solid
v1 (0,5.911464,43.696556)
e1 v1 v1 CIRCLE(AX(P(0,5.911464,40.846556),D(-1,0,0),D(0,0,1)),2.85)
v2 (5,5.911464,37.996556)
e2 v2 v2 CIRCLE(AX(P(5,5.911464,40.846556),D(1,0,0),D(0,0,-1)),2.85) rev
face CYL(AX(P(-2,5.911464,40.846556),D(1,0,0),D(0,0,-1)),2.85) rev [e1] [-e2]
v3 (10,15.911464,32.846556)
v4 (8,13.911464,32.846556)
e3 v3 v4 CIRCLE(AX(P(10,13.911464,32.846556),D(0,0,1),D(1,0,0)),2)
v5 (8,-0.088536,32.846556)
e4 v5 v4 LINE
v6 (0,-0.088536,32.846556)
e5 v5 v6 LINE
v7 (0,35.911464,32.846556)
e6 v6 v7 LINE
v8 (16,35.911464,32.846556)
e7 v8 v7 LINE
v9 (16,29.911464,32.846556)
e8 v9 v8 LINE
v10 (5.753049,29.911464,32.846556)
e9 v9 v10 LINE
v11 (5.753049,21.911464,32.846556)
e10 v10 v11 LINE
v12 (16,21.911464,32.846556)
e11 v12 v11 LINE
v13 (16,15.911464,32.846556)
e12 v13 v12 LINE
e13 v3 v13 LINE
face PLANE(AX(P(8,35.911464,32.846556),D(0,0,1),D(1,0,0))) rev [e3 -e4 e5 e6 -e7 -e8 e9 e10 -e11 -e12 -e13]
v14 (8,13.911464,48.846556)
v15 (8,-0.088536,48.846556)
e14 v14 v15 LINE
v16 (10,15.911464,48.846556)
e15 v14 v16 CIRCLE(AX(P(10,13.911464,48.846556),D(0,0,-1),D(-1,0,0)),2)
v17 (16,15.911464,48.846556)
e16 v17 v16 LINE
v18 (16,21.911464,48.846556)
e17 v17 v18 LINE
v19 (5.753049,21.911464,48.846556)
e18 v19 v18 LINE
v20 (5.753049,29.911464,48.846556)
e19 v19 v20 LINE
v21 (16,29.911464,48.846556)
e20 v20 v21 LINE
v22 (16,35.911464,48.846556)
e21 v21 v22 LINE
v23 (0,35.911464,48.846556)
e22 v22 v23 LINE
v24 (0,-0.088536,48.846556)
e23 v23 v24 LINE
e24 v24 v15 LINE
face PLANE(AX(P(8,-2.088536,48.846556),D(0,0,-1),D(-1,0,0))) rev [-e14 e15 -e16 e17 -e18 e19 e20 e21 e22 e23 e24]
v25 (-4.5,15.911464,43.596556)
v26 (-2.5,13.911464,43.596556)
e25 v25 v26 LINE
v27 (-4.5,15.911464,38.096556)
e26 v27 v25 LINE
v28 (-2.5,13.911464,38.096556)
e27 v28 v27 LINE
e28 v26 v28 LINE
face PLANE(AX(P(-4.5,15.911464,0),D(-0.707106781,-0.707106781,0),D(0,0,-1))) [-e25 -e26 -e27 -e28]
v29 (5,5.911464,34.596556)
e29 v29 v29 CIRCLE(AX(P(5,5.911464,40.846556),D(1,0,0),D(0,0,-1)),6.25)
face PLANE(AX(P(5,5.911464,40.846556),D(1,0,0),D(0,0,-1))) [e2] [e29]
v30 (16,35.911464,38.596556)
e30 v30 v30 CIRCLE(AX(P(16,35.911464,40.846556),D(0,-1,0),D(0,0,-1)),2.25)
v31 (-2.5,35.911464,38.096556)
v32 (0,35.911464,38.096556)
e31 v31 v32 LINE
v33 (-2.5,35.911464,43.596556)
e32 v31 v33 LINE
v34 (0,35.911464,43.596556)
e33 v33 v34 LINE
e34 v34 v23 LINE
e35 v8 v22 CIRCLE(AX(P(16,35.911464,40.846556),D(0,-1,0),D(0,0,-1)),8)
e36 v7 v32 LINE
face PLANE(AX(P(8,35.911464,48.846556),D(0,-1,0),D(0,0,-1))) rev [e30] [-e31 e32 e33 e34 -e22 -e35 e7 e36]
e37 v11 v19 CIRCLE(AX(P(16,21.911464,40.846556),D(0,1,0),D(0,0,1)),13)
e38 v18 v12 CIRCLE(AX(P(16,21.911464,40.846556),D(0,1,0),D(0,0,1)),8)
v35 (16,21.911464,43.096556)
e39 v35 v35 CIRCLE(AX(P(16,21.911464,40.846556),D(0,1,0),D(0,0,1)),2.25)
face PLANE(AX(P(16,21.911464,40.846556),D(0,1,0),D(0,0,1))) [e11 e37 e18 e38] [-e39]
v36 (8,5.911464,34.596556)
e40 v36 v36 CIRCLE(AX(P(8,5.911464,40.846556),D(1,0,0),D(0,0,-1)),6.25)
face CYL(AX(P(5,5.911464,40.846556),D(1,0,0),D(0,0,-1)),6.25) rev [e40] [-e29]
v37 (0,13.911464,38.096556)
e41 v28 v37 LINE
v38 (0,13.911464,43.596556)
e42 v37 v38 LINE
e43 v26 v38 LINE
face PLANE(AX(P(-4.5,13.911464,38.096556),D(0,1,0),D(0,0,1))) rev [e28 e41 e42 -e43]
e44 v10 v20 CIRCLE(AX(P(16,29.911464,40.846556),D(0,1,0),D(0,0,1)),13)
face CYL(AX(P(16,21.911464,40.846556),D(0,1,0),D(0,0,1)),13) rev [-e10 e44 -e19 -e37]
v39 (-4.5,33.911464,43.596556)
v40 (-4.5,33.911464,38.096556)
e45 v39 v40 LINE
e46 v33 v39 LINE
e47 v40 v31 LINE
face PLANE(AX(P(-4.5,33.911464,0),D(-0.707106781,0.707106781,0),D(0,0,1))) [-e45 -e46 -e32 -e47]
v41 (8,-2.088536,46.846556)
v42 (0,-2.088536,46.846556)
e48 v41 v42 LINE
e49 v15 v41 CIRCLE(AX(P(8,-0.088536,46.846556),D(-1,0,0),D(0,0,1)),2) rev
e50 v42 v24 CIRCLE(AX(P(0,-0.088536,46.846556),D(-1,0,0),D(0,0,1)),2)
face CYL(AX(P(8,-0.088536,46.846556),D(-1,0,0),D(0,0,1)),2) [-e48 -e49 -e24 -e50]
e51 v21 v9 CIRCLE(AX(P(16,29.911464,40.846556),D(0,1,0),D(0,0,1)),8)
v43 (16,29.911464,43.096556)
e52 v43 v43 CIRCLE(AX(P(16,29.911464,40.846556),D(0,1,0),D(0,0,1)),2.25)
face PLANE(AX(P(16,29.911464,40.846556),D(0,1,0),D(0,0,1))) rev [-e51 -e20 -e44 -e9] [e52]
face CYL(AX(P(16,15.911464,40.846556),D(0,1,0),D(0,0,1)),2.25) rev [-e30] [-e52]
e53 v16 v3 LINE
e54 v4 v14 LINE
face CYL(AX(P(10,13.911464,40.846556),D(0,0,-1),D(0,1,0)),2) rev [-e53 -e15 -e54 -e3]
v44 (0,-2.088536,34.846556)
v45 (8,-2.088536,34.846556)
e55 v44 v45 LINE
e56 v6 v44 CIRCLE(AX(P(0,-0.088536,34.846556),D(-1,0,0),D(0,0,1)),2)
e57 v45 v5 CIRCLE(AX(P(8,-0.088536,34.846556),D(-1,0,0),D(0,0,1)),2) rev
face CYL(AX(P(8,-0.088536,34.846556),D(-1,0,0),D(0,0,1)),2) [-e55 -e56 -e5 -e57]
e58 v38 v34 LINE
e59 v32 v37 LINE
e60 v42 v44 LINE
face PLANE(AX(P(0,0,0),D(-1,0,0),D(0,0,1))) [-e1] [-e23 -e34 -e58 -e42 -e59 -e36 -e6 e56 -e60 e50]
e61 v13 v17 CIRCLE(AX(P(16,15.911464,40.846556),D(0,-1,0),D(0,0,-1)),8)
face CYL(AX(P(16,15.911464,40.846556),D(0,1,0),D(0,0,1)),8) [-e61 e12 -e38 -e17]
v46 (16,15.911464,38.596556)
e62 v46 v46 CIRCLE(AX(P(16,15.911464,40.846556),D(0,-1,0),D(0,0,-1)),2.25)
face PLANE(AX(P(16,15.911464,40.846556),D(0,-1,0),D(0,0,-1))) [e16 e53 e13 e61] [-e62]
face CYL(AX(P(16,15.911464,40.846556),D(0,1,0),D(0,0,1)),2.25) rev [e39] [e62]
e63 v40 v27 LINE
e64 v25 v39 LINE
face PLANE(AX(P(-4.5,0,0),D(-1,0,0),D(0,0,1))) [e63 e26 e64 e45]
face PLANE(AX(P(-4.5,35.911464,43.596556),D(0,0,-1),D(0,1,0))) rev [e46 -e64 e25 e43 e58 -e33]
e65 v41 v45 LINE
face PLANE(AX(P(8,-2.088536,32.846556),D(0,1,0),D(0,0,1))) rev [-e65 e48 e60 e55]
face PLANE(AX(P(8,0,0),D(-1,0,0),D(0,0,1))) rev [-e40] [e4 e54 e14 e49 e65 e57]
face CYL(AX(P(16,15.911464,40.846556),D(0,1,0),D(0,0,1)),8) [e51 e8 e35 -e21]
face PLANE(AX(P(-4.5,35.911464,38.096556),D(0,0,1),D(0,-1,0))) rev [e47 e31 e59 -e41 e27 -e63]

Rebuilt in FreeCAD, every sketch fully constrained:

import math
import FreeCAD as App
import Part
import Sketcher
Q = App.Units.Quantity


def edges_at(feature, points):
    """Names of the edges that pass closest to the given points."""
    edges = feature.Shape.Edges
    near = lambda p: min(range(len(edges)), key=lambda i: edges[i].distToShape(Part.Vertex(*p))[0])
    return sorted({f"Edge{near(p) + 1}" for p in points})


def add_polygon(sketch, points):
    """Adds a closed chain of lines whose ends are joined by coincident constraints."""
    first, n = sketch.GeometryCount, len(points)
    for a, b in zip(points, points[1:] + points[:1]):
        sketch.addGeometry(Part.LineSegment(App.Vector(*a, 0), App.Vector(*b, 0)), False)
    for i in range(n):
        sketch.addConstraint(Sketcher.Constraint("Coincident", first + i, 2, first + (i + 1) % n, 1))

doc = App.newDocument("Part")
body = doc.addObject("PartDesign::Body", "Body")

# Sketch on YZ plane
sketch1 = body.newObject("Sketcher::SketchObject", "Sketch")
sketch1.AttachmentSupport = (doc.getObject("YZ_Plane"), [""])
sketch1.MapMode = "FlatFace"
add_polygon(sketch1, [(36, 49), (-2, 49), (-2, 33), (36, 33)])  # lines 0-3
sketch1.addConstraint(Sketcher.Constraint("Horizontal", 0))
sketch1.addConstraint(Sketcher.Constraint("Vertical", 1))
sketch1.addConstraint(Sketcher.Constraint("Horizontal", 2))
sketch1.addConstraint(Sketcher.Constraint("Vertical", 3))
sketch1.addConstraint(Sketcher.Constraint("DistanceX", 0, 2, 0, 1, Q("38 mm")))
sketch1.addConstraint(Sketcher.Constraint("DistanceY", 1, 2, 1, 1, Q("16 mm")))
sketch1.addConstraint(Sketcher.Constraint("DistanceX", 0, 2, -1, 1, Q("2.088536 mm")))
sketch1.addConstraint(Sketcher.Constraint("DistanceY", -1, 1, 0, 2, Q("48.846556 mm")))
pad1 = body.newObject("PartDesign::Pad", "Pad")
pad1.Profile = sketch1
pad1.Length = 8

# Sketch on YZ plane
sketch2 = body.newObject("Sketcher::SketchObject", "Sketch001")
sketch2.AttachmentSupport = (doc.getObject("YZ_Plane"), [""])
sketch2.MapMode = "FlatFace"
add_polygon(sketch2, [(36, 38), (14, 38), (14, 44), (36, 44)])  # lines 0-3
sketch2.addConstraint(Sketcher.Constraint("Horizontal", 0))
sketch2.addConstraint(Sketcher.Constraint("Vertical", 1))
sketch2.addConstraint(Sketcher.Constraint("Horizontal", 2))
sketch2.addConstraint(Sketcher.Constraint("Vertical", 3))
sketch2.addConstraint(Sketcher.Constraint("DistanceX", 0, 2, 0, 1, Q("22 mm")))
sketch2.addConstraint(Sketcher.Constraint("DistanceY", 1, 1, 1, 2, Q("5.5 mm")))
sketch2.addConstraint(Sketcher.Constraint("DistanceX", -1, 1, 0, 2, Q("13.911464 mm")))
sketch2.addConstraint(Sketcher.Constraint("DistanceY", -1, 1, 0, 2, Q("38.096556 mm")))
pad2 = body.newObject("PartDesign::Pad", "Pad001")
pad2.Profile = sketch2
pad2.Length = 4.5
pad2.Reversed = True

# Sketch on XZ plane
sketch3 = body.newObject("Sketcher::SketchObject", "Sketch002")
sketch3.AttachmentSupport = (doc.getObject("XZ_Plane"), [""])
sketch3.MapMode = "FlatFace"
sketch3.AttachmentOffset = App.Placement(App.Vector(0, 0, -35.911464), App.Rotation())
sketch3.addGeometry(Part.LineSegment(App.Vector(16, 48.8, 0), App.Vector(8, 48.8, 0)), False)
sketch3.addGeometry(Part.LineSegment(App.Vector(8, 48.8, 0), App.Vector(8, 32.8, 0)), False)
sketch3.addGeometry(Part.LineSegment(App.Vector(8, 32.8, 0), App.Vector(16, 32.8, 0)), False)
sketch3.addGeometry(Part.ArcOfCircle(Part.Circle(App.Vector(16, 40.8, 0), App.Vector(0, 0, 1), 8), math.radians(-90), math.radians(90)), False)
sketch3.addGeometry(Part.Circle(App.Vector(16, 40.8, 0), App.Vector(0, 0, 1), 2.2), False)
sketch3.addConstraint(Sketcher.Constraint("Coincident", 0, 2, 1, 1))
sketch3.addConstraint(Sketcher.Constraint("Coincident", 1, 2, 2, 1))
sketch3.addConstraint(Sketcher.Constraint("Tangent", 2, 2, 3, 1))
sketch3.addConstraint(Sketcher.Constraint("Tangent", 3, 2, 0, 1))
sketch3.addConstraint(Sketcher.Constraint("Horizontal", 0))
sketch3.addConstraint(Sketcher.Constraint("Vertical", 1))
sketch3.addConstraint(Sketcher.Constraint("Horizontal", 2))
sketch3.addConstraint(Sketcher.Constraint("Coincident", 4, 3, 3, 3))
sketch3.addConstraint(Sketcher.Constraint("Radius", 3, Q("8 mm")))
sketch3.addConstraint(Sketcher.Constraint("Diameter", 4, Q("4.5 mm")))
sketch3.addConstraint(Sketcher.Constraint("DistanceX", 0, 2, 0, 1, Q("8 mm")))
sketch3.addConstraint(Sketcher.Constraint("DistanceX", -1, 1, 3, 3, Q("16 mm")))
sketch3.addConstraint(Sketcher.Constraint("DistanceY", -1, 1, 3, 3, Q("40.846556 mm")))
pad3 = body.newObject("PartDesign::Pad", "Pad002")
pad3.Profile = sketch3
pad3.Length = 20
doc.recompute()

fillet = body.newObject("PartDesign::Fillet", "Fillet")
fillet.Base = (pad3, edges_at(pad3, [(8, 15.911, 40.847)]))
fillet.Radius = 2
doc.recompute()

chamfer = body.newObject("PartDesign::Chamfer", "Chamfer")
chamfer.Base = (fillet, edges_at(fillet, [(-4.5, 13.911, 40.847), (-4.5, 35.911, 40.847)]))
chamfer.Size = 2

# Sketch on YZ plane
sketch4 = body.newObject("Sketcher::SketchObject", "Sketch003")
sketch4.AttachmentSupport = (doc.getObject("YZ_Plane"), [""])
sketch4.MapMode = "FlatFace"
sketch4.AttachmentOffset = App.Placement(App.Vector(0, 0, 8), App.Rotation())
sketch4.addGeometry(Part.Circle(App.Vector(5.9, 40.8, 0), App.Vector(0, 0, 1), 2.9), False)
sketch4.addConstraint(Sketcher.Constraint("Diameter", 0, Q("5.7 mm")))
sketch4.addConstraint(Sketcher.Constraint("DistanceX", -1, 1, 0, 3, Q("5.911464 mm")))
sketch4.addConstraint(Sketcher.Constraint("DistanceY", -1, 1, 0, 3, Q("40.846556 mm")))
pocket1 = body.newObject("PartDesign::Pocket", "Pocket")
pocket1.Profile = sketch4
pocket1.Length = 10

# Sketch on YZ plane
sketch5 = body.newObject("Sketcher::SketchObject", "Sketch004")
sketch5.AttachmentSupport = (doc.getObject("YZ_Plane"), [""])
sketch5.MapMode = "FlatFace"
sketch5.AttachmentOffset = App.Placement(App.Vector(0, 0, 8), App.Rotation())
sketch5.addGeometry(Part.Circle(App.Vector(6, 41, 0), App.Vector(0, 0, 1), 6), False)
sketch5.addConstraint(Sketcher.Constraint("Diameter", 0, Q("12.5 mm")))
sketch5.addConstraint(Sketcher.Constraint("DistanceX", -1, 1, 0, 3, Q("5.911464 mm")))
sketch5.addConstraint(Sketcher.Constraint("DistanceY", -1, 1, 0, 3, Q("40.846556 mm")))
pocket2 = body.newObject("PartDesign::Pocket", "Pocket001")
pocket2.Profile = sketch5
pocket2.Length = 3

# Sketch on XZ plane
sketch6 = body.newObject("Sketcher::SketchObject", "Sketch005")
sketch6.AttachmentSupport = (doc.getObject("XZ_Plane"), [""])
sketch6.MapMode = "FlatFace"
sketch6.AttachmentOffset = App.Placement(App.Vector(0, 0, -25.911464), App.Rotation())
sketch6.addGeometry(Part.Circle(App.Vector(16, 41, 0), App.Vector(0, 0, 1), 13), False)
sketch6.addConstraint(Sketcher.Constraint("Diameter", 0, Q("26 mm")))
sketch6.addConstraint(Sketcher.Constraint("DistanceX", -1, 1, 0, 3, Q("16 mm")))
sketch6.addConstraint(Sketcher.Constraint("DistanceY", -1, 1, 0, 3, Q("40.846556 mm")))
pocket3 = body.newObject("PartDesign::Pocket", "Pocket002")
pocket3.Profile = sketch6
pocket3.Length = 8
pocket3.Midplane = True
doc.recompute()

fillet2 = body.newObject("PartDesign::Fillet", "Fillet001")
fillet2.Base = (pocket3, edges_at(pocket3, [(4, -2.089, 32.847), (4, -2.089, 48.847)]))
fillet2.Radius = 2

doc.recompute()
